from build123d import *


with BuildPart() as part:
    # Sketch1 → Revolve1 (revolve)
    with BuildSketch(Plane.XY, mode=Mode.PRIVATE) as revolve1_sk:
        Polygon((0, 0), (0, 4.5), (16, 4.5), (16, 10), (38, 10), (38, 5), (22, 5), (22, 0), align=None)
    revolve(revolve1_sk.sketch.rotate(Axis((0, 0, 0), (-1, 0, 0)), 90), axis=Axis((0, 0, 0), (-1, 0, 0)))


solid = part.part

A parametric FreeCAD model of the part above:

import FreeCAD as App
import Part
import Sketcher
from FreeCAD import Vector
Q = App.Units.Quantity


def add_polygon(sketch, points):
    """Adds a closed chain of lines whose ends are joined by coincident constraints."""
    first, n = sketch.GeometryCount, len(points)
    for a, b in zip(points, points[1:] + points[:1]):
        sketch.addGeometry(Part.LineSegment(App.Vector(*a, 0), App.Vector(*b, 0)), False)
    for i in range(n):
        sketch.addConstraint(Sketcher.Constraint("Coincident", first + i, 2, first + (i + 1) % n, 1))

doc = App.newDocument("Part")
body = doc.addObject("PartDesign::Body", "Body")

sketch1 = body.newObject("Sketcher::SketchObject", "Sketch")
sketch1.AttachmentSupport = (doc.getObject("XY_Plane"), [""])
sketch1.MapMode = "FlatFace"
add_polygon(sketch1, [(0, 4.5), (0, 0), (22, 0), (22, 5), (38, 5), (38, 10), (16, 10), (16, 4.5)])
sketch1.addConstraint(Sketcher.Constraint("Vertical", 0))
sketch1.addConstraint(Sketcher.Constraint("Horizontal", 1))
sketch1.addConstraint(Sketcher.Constraint("Vertical", 2))
sketch1.addConstraint(Sketcher.Constraint("Horizontal", 3))
sketch1.addConstraint(Sketcher.Constraint("Vertical", 4))
sketch1.addConstraint(Sketcher.Constraint("Horizontal", 5))
sketch1.addConstraint(Sketcher.Constraint("Vertical", 6))
sketch1.addConstraint(Sketcher.Constraint("Horizontal", 7))
sketch1.addConstraint(Sketcher.Constraint("Coincident", 0, 2, -1, 1))
sketch1.addConstraint(Sketcher.Constraint("Equal", 1, 5))
sketch1.addConstraint(Sketcher.Constraint("Equal", 2, 4))
sketch1.addConstraint(Sketcher.Constraint("DistanceX", 1, 1, 1, 2, Q("22 mm")))
sketch1.addConstraint(Sketcher.Constraint("DistanceX", 3, 1, 3, 2, Q("16 mm")))
sketch1.addConstraint(Sketcher.Constraint("DistanceY", 2, 1, 2, 2, Q("5 mm")))
sketch1.addConstraint(Sketcher.Constraint("DistanceY", 0, 2, 0, 1, Q("4.5 mm")))
revolution = body.newObject("PartDesign::Revolution", "Revolution")
revolution.Profile = sketch1
revolution.ReferenceAxis = (sketch1, ["H_Axis"])
revolution.Angle = 360

doc.recompute()
